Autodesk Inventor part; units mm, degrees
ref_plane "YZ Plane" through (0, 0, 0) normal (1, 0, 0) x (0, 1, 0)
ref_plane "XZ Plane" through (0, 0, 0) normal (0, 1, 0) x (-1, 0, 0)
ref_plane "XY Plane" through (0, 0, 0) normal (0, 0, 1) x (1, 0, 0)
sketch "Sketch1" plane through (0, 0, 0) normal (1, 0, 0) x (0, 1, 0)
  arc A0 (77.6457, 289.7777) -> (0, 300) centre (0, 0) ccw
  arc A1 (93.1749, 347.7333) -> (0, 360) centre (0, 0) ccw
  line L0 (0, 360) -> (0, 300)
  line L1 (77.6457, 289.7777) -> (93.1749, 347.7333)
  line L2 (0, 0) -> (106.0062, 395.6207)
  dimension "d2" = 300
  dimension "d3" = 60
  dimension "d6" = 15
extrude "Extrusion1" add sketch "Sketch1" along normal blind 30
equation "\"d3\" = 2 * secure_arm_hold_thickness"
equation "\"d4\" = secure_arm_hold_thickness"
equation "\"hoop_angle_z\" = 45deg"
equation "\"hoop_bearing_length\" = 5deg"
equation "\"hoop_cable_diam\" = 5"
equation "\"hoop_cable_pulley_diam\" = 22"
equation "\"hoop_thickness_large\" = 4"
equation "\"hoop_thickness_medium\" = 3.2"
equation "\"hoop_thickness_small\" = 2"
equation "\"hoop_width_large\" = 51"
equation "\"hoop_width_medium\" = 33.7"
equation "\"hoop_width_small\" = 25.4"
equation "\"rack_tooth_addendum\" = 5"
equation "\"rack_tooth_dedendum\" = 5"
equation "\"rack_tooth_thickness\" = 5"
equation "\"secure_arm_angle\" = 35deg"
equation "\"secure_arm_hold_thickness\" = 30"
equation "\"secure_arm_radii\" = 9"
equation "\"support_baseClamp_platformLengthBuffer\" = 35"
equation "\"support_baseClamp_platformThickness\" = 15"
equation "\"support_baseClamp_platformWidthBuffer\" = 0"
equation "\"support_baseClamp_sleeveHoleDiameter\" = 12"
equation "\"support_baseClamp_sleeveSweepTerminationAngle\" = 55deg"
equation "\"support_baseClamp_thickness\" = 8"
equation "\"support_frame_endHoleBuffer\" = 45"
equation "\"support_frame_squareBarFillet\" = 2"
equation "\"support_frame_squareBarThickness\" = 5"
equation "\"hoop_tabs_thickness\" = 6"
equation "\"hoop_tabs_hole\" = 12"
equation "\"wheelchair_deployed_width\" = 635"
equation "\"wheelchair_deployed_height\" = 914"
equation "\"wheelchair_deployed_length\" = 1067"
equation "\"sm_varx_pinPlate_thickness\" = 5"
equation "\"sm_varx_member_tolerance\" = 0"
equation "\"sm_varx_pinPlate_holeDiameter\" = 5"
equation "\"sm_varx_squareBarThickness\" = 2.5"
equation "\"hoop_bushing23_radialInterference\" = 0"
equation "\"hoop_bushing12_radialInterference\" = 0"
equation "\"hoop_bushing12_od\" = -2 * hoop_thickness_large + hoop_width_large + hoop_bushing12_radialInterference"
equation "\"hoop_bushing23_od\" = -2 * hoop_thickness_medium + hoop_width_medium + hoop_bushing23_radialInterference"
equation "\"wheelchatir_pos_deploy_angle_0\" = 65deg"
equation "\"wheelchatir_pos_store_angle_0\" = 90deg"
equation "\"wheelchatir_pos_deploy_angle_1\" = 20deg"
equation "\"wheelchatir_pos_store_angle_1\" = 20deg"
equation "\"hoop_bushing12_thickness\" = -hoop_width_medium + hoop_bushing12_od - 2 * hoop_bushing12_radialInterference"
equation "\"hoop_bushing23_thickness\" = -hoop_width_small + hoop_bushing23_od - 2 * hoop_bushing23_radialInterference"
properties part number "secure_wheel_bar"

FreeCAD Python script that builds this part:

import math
import FreeCAD as App
import Part
import Sketcher

V = App.Vector
Q = App.Units.Quantity

doc = App.newDocument("Part")
body = doc.addObject("PartDesign::Body", "Body")

sketch1 = body.newObject("Sketcher::SketchObject", "Sketch")
sketch1.AttachmentSupport = (doc.getObject("YZ_Plane"), [""])
sketch1.MapMode = "FlatFace"
sketch1.addGeometry(Part.ArcOfCircle(Part.Circle(V(0, 0, 0), V(0, 0, 1), 300), math.radians(75), math.radians(90)), False)
sketch1.addGeometry(Part.LineSegment(V(78, 290, 0), V(93, 348, 0)), False)
sketch1.addGeometry(Part.ArcOfCircle(Part.Circle(V(0, 0, 0), V(0, 0, 1), 360), math.radians(75), math.radians(90)), False)
sketch1.addGeometry(Part.LineSegment(V(0, 360, 0), V(0, 300, 0)), False)
sketch1.addConstraint(Sketcher.Constraint("Coincident", 0, 1, 1, 1))
sketch1.addConstraint(Sketcher.Constraint("Coincident", 1, 2, 2, 1))
sketch1.addConstraint(Sketcher.Constraint("Coincident", 2, 2, 3, 1))
sketch1.addConstraint(Sketcher.Constraint("Coincident", 3, 2, 0, 2))
sketch1.addConstraint(Sketcher.Constraint("Vertical", 3))
sketch1.addConstraint(Sketcher.Constraint("Coincident", 2, 3, -1, 1))
sketch1.addConstraint(Sketcher.Constraint("PointOnObject", 3, 2, -2))
sketch1.addConstraint(Sketcher.Constraint("DistanceY", 3, 2, 3, 1, 60.0))
sketch1.addConstraint(Sketcher.Constraint("Distance", 1, 60.0))
sketch1.addConstraint(Sketcher.Constraint("DistanceY", -1, 1, 3, 2, 300.0))
sketch1.addConstraint(Sketcher.Constraint("Angle", 1, Q("75 deg")))
sketch1.addConstraint(Sketcher.Constraint("Radius", 0, 300.0029))
sketch1.addConstraint(Sketcher.Constraint("DistanceX", -1, 1, 1, 2, 93.175))
pad1 = body.newObject("PartDesign::Pad", "Pad")
pad1.Profile = sketch1
pad1.Length = 30

doc.recompute()
